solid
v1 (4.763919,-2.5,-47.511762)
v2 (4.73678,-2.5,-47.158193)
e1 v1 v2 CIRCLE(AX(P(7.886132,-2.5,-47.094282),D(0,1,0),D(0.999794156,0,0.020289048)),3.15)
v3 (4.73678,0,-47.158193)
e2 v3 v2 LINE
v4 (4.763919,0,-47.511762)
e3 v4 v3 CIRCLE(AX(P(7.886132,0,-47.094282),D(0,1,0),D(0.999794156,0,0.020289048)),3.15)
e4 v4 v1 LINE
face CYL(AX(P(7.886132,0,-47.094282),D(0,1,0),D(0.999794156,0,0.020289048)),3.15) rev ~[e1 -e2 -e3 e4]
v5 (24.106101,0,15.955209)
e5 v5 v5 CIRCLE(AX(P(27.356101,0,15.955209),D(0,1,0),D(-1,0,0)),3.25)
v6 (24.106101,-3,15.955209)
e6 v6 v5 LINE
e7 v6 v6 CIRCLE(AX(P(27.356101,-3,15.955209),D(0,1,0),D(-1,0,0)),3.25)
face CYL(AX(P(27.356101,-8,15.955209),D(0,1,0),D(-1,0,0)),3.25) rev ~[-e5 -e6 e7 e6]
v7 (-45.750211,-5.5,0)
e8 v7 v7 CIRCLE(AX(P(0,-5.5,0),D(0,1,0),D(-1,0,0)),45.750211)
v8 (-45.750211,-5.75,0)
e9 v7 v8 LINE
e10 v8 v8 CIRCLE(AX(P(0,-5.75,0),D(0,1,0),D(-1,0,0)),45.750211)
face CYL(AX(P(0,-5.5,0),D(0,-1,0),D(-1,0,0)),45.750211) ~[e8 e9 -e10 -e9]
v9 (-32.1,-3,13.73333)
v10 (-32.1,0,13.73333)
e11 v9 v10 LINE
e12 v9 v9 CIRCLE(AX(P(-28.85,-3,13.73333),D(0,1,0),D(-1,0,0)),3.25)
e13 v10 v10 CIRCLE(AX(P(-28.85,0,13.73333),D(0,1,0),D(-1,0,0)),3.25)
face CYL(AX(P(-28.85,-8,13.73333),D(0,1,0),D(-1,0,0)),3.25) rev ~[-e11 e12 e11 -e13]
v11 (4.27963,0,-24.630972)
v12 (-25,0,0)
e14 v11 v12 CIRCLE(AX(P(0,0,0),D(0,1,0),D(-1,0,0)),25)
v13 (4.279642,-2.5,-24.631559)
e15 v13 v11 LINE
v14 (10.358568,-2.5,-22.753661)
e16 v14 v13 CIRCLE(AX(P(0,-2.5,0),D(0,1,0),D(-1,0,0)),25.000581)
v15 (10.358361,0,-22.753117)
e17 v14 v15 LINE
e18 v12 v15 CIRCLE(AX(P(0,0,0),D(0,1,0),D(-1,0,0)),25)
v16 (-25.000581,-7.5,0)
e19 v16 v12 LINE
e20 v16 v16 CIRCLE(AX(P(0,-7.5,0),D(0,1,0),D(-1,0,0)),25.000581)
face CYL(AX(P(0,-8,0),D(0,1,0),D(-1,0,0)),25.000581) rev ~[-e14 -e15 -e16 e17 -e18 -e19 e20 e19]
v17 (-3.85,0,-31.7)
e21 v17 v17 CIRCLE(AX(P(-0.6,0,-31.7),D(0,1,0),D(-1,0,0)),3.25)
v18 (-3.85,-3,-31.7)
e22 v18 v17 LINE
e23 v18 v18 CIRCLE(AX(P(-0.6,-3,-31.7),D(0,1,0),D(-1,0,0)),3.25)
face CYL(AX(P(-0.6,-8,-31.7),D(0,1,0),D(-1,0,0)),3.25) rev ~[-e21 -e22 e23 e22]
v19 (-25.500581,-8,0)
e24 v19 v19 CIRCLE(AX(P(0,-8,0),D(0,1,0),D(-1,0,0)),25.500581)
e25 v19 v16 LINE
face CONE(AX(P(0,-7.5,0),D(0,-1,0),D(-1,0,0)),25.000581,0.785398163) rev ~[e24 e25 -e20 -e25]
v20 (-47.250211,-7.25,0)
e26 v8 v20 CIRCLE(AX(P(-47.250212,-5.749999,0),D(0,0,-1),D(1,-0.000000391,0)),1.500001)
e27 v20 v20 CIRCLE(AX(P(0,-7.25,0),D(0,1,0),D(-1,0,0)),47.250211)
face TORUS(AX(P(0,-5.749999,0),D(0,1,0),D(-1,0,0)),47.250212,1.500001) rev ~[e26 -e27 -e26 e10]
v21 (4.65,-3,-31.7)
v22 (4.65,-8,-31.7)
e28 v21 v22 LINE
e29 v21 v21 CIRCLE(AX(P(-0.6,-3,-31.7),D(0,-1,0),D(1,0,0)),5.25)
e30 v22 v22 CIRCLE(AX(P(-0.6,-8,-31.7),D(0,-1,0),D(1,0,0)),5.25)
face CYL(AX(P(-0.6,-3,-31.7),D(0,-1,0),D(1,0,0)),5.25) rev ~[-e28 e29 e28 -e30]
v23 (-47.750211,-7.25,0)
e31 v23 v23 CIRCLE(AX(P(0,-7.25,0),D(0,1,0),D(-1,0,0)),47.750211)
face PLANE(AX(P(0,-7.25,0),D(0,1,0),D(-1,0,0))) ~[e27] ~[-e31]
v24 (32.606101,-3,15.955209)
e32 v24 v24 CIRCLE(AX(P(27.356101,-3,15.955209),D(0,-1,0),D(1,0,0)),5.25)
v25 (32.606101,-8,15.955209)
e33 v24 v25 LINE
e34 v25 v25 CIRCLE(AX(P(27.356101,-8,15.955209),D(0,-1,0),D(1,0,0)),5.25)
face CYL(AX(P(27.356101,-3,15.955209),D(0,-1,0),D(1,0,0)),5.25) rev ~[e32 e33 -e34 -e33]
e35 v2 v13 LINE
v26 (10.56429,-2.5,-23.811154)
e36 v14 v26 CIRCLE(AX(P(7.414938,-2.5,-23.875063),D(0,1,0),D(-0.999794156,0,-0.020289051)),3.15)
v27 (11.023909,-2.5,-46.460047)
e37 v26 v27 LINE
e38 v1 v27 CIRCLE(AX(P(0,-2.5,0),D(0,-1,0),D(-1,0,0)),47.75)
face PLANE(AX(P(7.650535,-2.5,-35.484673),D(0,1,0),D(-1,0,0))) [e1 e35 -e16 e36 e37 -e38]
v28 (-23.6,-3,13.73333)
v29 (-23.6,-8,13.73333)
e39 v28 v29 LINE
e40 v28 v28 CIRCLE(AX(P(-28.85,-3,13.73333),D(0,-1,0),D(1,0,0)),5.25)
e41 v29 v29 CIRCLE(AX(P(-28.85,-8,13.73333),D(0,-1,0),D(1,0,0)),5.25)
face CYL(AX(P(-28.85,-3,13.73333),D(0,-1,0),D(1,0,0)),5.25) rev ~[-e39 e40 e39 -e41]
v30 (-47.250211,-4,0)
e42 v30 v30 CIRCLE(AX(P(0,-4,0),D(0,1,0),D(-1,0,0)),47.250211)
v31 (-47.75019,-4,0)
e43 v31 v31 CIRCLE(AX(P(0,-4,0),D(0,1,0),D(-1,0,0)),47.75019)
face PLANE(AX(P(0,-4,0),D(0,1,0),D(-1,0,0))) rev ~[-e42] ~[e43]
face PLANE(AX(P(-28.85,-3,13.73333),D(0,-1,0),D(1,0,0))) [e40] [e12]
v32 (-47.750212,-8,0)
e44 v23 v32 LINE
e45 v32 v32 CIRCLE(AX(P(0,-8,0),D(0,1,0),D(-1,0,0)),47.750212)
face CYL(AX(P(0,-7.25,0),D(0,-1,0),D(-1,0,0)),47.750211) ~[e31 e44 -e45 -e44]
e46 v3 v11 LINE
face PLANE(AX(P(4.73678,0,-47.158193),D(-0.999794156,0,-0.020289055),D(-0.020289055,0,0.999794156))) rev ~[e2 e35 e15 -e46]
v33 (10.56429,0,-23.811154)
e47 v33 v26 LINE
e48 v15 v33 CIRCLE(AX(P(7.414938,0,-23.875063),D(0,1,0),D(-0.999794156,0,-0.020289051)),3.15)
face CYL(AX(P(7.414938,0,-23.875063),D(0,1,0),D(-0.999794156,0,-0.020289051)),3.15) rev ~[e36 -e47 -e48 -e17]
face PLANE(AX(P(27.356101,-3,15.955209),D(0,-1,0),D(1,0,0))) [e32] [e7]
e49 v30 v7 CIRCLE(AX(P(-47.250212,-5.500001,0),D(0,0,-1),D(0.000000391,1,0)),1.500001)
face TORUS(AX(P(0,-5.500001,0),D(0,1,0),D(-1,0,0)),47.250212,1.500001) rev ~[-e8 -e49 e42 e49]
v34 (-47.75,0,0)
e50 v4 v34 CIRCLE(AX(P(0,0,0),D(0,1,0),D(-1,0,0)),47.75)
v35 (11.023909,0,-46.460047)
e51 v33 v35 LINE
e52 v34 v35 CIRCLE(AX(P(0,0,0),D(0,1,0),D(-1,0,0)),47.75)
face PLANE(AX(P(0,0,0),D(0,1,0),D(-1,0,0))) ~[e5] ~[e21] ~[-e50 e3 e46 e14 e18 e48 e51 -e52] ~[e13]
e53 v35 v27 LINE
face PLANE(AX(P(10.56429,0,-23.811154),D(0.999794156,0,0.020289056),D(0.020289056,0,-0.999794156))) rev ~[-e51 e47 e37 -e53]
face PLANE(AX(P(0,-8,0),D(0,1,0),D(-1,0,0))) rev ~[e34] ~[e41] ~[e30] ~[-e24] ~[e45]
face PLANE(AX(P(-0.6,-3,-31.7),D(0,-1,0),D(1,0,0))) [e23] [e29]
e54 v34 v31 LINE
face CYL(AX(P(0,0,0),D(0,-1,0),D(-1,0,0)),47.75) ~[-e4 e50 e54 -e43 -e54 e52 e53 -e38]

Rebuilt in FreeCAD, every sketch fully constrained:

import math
import FreeCAD as App
import Part
import Sketcher

V = App.Vector
Q = App.Units.Quantity


def edges_at(feature, points):
    """Names of the edges that pass closest to the given points."""
    edges = feature.Shape.Edges
    near = lambda p: min(range(len(edges)), key=lambda i: edges[i].distToShape(Part.Vertex(*p))[0])
    return sorted({f"Edge{near(p) + 1}" for p in points})

doc = App.newDocument("Part")
body = doc.addObject("PartDesign::Body", "Body")

# Sketch on XY plane
sketch1 = doc.addObject("Sketcher::SketchObject", "Sketch")
body.addObject(sketch1)
sketch1.AttachmentSupport = (doc.XY_Plane, [""])
sketch1.MapMode = "FlatFace"
sketch1.addGeometry([
    Part.LineSegment(V(-47.75, -7.25, 0), V(-47.75, -8, 0)),  # 0
    Part.LineSegment(V(-47.75, -8, 0), V(-25, -8, 0)),  # 1
    Part.LineSegment(V(-25, -8, 0), V(-25, 0, 0)),  # 2
    Part.LineSegment(V(-25, 0, 0), V(-47.75, 0, 0)),  # 3
    Part.LineSegment(V(-47.75, 0, 0), V(-47.75, -4, 0)),  # 4
    Part.LineSegment(V(-47.75, -4, 0), V(-47.25, -4, 0)),  # 5
    Part.ArcOfCircle(Part.Circle(V(-47.25, -5.5, 0), V(0, 0, 1), 1.5), math.radians(0), math.radians(90)),  # 6
    Part.LineSegment(V(-45.75, -5.5, 0), V(-45.75, -5.75, 0)),  # 7
    Part.ArcOfCircle(Part.Circle(V(-47.25, -5.75, 0), V(0, 0, 1), 1.5), math.radians(-90), math.radians(0)),  # 8
    Part.LineSegment(V(-47.25, -7.25, 0), V(-47.75, -7.25, 0)),  # 9
], False)
sketch1.addConstraint([
    Sketcher.Constraint("Coincident", 0, 2, 1, 1),
    Sketcher.Constraint("Coincident", 1, 2, 2, 1),
    Sketcher.Constraint("Coincident", 2, 2, 3, 1),
    Sketcher.Constraint("Coincident", 3, 2, 4, 1),
    Sketcher.Constraint("Coincident", 4, 2, 5, 1),
    Sketcher.Constraint("Tangent", 5, 2, 6, 2),
    Sketcher.Constraint("Tangent", 6, 1, 7, 1),
    Sketcher.Constraint("Tangent", 7, 2, 8, 2),
    Sketcher.Constraint("Tangent", 8, 1, 9, 1),
    Sketcher.Constraint("Coincident", 9, 2, 0, 1),
    Sketcher.Constraint("Vertical", 0),
    Sketcher.Constraint("Horizontal", 1),
    Sketcher.Constraint("Horizontal", 3),
    Sketcher.Constraint("Horizontal", 5),
    Sketcher.Constraint("Vertical", 7),
    Sketcher.Constraint("Horizontal", 9),
    Sketcher.Constraint("Equal", 6, 8),
    Sketcher.Constraint("PointOnObject", 2, 2, -1),
    Sketcher.Constraint("Radius", 6, Q("1.500001 mm")),
    Sketcher.Constraint("Distance", 2, Q("8 mm")),
    Sketcher.Constraint("Distance", 4, Q("4 mm")),
    Sketcher.Constraint("DistanceX", 9, 2, 9, 1, Q("0.5 mm")),
    Sketcher.Constraint("DistanceX", 2, 2, -1, 1, Q("25 mm")),
    Sketcher.Constraint("DistanceX", 3, 2, 3, 1, Q("22.75 mm")),
    Sketcher.Constraint("DistanceY", 0, 2, 0, 1, Q("0.75 mm")),
    Sketcher.Constraint("DistanceX", 1, 1, 1, 2, Q("22.749631 mm")),
    Sketcher.Constraint("DistanceX", 5, 1, 5, 2, Q("0.499979 mm")),
    Sketcher.Constraint("DistanceX", 6, 3, -1, 1, Q("47.250212 mm")),
])
revolution = doc.addObject("PartDesign::Revolution", "Revolution")
body.addObject(revolution)
revolution.Profile = sketch1
revolution.ReferenceAxis = (sketch1, ["V_Axis"])
revolution.Angle = 360
doc.recompute()

chamfer = doc.addObject("PartDesign::Chamfer", "Chamfer")
body.addObject(chamfer)
chamfer.Base = (revolution, edges_at(revolution, [(25.001, -8, 0)]))
chamfer.Size = 0.5

# Sketch on XZ plane
sketch2 = doc.addObject("Sketcher::SketchObject", "Sketch001")
body.addObject(sketch2)
sketch2.AttachmentSupport = (doc.XZ_Plane, [""])
sketch2.MapMode = "FlatFace"
sketch2.addGeometry([
    Part.ArcOfCircle(Part.Circle(V(7.4, -23.9, 0), V(0, 0, 1), 3.1), math.radians(1), math.radians(181)),
    Part.LineSegment(V(10.6, -23.8, 0), V(11, -47, 0)),
    Part.ArcOfCircle(Part.Circle(V(7.9, -47.1, 0), V(0, 0, 1), 3.1), math.radians(-179), math.radians(1)),
    Part.LineSegment(V(4.7, -47.2, 0), V(4.3, -23.9, 0)),
], False)
sketch2.addConstraint([
    Sketcher.Constraint("Tangent", 0, 1, 1, 1),
    Sketcher.Constraint("Tangent", 1, 2, 2, 2),
    Sketcher.Constraint("Tangent", 2, 1, 3, 1),
    Sketcher.Constraint("Tangent", 3, 2, 0, 2),
    Sketcher.Constraint("Equal", 0, 2),
    Sketcher.Constraint("Radius", 0, Q("3.15 mm")),
    Sketcher.Constraint("Distance", 1, Q("23.223999 mm")),
    Sketcher.Constraint("DistanceX", -1, 1, 0, 3, Q("7.414938 mm")),
    Sketcher.Constraint("DistanceX", -1, 1, 2, 3, Q("7.886132 mm")),
    Sketcher.Constraint("DistanceY", 0, 3, -1, 1, Q("23.875063 mm")),
])
pocket1 = doc.addObject("PartDesign::Pocket", "Pocket")
body.addObject(pocket1)
pocket1.Profile = sketch2
pocket1.Length = 2.5
pocket1.Reversed = True

# Sketch on XZ plane
sketch3 = doc.addObject("Sketcher::SketchObject", "Sketch002")
body.addObject(sketch3)
sketch3.AttachmentSupport = (doc.XZ_Plane, [""])
sketch3.MapMode = "FlatFace"
sketch3.AttachmentOffset = App.Placement(V(0, 0, 8), App.Rotation())
sketch3.addGeometry([
    Part.Circle(V(-28.9, 13.7, 0), V(0, 0, 1), 3.2),
    Part.Circle(V(27.4, 16, 0), V(0, 0, 1), 3.2),
    Part.Circle(V(-0.6, -31.7, 0), V(0, 0, 1), 3.2),
], False)
sketch3.addConstraint([
    Sketcher.Constraint("Equal", 0, 1),
    Sketcher.Constraint("Equal", 1, 2),
    Sketcher.Constraint("Diameter", 0, Q("6.5 mm")),
    Sketcher.Constraint("DistanceX", 2, 3, -1, 1, Q("0.6 mm")),
    Sketcher.Constraint("DistanceY", 2, 3, -1, 1, Q("31.7 mm")),
    Sketcher.Constraint("DistanceX", 0, 3, -1, 1, Q("28.85 mm")),
    Sketcher.Constraint("DistanceX", -1, 1, 1, 3, Q("27.356101 mm")),
    Sketcher.Constraint("DistanceY", -1, 1, 0, 3, Q("13.73333 mm")),
    Sketcher.Constraint("DistanceY", -1, 1, 1, 3, Q("15.955209 mm")),
])
doc.recompute()
hole = doc.addObject("PartDesign::Hole", "Hole")
body.addObject(hole)
hole.Profile = sketch3
hole.ThreadType = "None"
hole.Diameter = 6.5
hole.DepthType = "ThroughAll"
hole.HoleCutType = "Counterbore"
hole.HoleCutDiameter = 10.5
hole.HoleCutDepth = 5

doc.recompute()
